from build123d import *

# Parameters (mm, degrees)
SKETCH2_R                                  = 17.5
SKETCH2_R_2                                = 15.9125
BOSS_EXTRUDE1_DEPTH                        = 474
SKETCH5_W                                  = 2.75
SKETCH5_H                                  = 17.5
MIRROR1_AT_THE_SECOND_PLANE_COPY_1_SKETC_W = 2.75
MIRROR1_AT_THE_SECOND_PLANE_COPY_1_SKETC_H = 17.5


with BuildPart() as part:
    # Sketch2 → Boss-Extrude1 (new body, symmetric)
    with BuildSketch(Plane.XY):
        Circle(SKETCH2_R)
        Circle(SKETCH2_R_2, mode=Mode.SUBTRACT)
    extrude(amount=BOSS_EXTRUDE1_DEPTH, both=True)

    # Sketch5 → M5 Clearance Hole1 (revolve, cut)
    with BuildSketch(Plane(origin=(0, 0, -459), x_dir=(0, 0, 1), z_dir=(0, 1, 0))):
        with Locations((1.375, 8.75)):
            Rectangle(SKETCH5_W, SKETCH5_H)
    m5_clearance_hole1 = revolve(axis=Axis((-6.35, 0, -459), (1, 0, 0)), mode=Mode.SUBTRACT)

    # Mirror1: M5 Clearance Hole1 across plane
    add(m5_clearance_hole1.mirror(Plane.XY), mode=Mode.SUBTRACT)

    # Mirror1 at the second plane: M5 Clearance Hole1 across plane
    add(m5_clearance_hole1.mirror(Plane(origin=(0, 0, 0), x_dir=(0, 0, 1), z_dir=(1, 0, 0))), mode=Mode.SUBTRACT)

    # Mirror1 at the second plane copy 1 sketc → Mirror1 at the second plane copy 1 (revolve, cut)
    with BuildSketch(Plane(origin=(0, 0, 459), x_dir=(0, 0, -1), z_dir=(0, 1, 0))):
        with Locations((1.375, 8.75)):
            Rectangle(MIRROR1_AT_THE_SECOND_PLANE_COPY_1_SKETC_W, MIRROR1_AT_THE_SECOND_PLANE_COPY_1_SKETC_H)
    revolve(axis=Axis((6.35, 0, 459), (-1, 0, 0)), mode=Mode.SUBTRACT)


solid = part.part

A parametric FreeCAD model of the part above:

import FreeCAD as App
import Part
import Sketcher

V = App.Vector


def add_polygon(sketch, points):
    """Adds a closed chain of lines whose ends are joined by coincident constraints."""
    first, n = sketch.GeometryCount, len(points)
    for a, b in zip(points, points[1:] + points[:1]):
        sketch.addGeometry(Part.LineSegment(App.Vector(*a, 0), App.Vector(*b, 0)), False)
    for i in range(n):
        sketch.addConstraint(Sketcher.Constraint("Coincident", first + i, 2, first + (i + 1) % n, 1))

doc = App.newDocument("Part")
body = doc.addObject("PartDesign::Body", "Body")

# Sketch on XY plane
sketch1 = body.newObject("Sketcher::SketchObject", "Sketch")
sketch1.AttachmentSupport = (doc.getObject("XY_Plane"), [""])
sketch1.MapMode = "FlatFace"
sketch1.addGeometry([
    Part.Circle(V(0, 0, 0), V(0, 0, 1), 18),
    Part.Circle(V(0, 0, 0), V(0, 0, 1), 16),
], False)
sketch1.addConstraint([
    Sketcher.Constraint("Coincident", 0, 3, -1, 1),
    Sketcher.Constraint("Coincident", 1, 3, -1, 1),
    Sketcher.Constraint("Diameter", 0, 35.0),
    Sketcher.Constraint("Diameter", 1, 31.825),
])
pad1 = body.newObject("PartDesign::Pad", "Pad")
pad1.Profile = sketch1
pad1.Length = 948
pad1.Midplane = True

# Sketch on XZ plane
sketch2 = body.newObject("Sketcher::SketchObject", "Sketch001")
sketch2.AttachmentSupport = (doc.getObject("XZ_Plane"), [""])
sketch2.MapMode = "FlatFace"
add_polygon(sketch2, [(17.5, -459), (0, -459), (0, -456.2), (17.5, -456.2)])  # lines 0-3
sketch2.addGeometry(Part.LineSegment(V(0, -459, 0), V(17.5, -459, 0)), True)  # axis
sketch2.addConstraint([
    Sketcher.Constraint("Horizontal", 0),
    Sketcher.Constraint("Vertical", 1),
    Sketcher.Constraint("Horizontal", 2),
    Sketcher.Constraint("Vertical", 3),
    Sketcher.Constraint("Horizontal", 4),
    Sketcher.Constraint("Coincident", 4, 1, 0, 2),
    Sketcher.Constraint("PointOnObject", 0, 2, -2),
    Sketcher.Constraint("Vertical", 2, 2, 4, 2),
    Sketcher.Constraint("DistanceX", 0, 2, 0, 1, 17.5),
    Sketcher.Constraint("DistanceY", 0, 2, -1, 1, 459.0),
    Sketcher.Constraint("DistanceY", 1, 1, 1, 2, 2.75),
])
groove = body.newObject("PartDesign::Groove", "Groove")
groove.Profile = sketch2
groove.ReferenceAxis = (sketch2, ["Axis0"])
groove.Angle = 360
doc.recompute()

mirrored = body.newObject("PartDesign::Mirrored", "Mirrored")
mirrored.Originals = [groove]
mirrored.MirrorPlane = (doc.getObject("XY_Plane"), [""])
body.Tip = mirrored
doc.recompute()

mirrored2 = body.newObject("PartDesign::Mirrored", "Mirrored001")
mirrored2.Originals = [groove]
mirrored2.MirrorPlane = (doc.getObject("YZ_Plane"), [""])
body.Tip = mirrored2

# Sketch on XZ plane
sketch3 = body.newObject("Sketcher::SketchObject", "Sketch002")
sketch3.AttachmentSupport = (doc.getObject("XZ_Plane"), [""])
sketch3.MapMode = "FlatFace"
add_polygon(sketch3, [(-17.5, 459), (0, 459), (0, 456.2), (-17.5, 456.2)])  # lines 0-3
sketch3.addGeometry(Part.LineSegment(V(0, 459, 0), V(-17.5, 459, 0)), True)  # axis
sketch3.addConstraint([
    Sketcher.Constraint("Horizontal", 0),
    Sketcher.Constraint("Vertical", 1),
    Sketcher.Constraint("Horizontal", 2),
    Sketcher.Constraint("Vertical", 3),
    Sketcher.Constraint("Horizontal", 4),
    Sketcher.Constraint("Coincident", 4, 1, 0, 2),
    Sketcher.Constraint("PointOnObject", 0, 2, -2),
    Sketcher.Constraint("Vertical", 2, 2, 4, 2),
    Sketcher.Constraint("DistanceX", 0, 1, 0, 2, 17.5),
    Sketcher.Constraint("DistanceY", -1, 1, 0, 2, 459.0),
    Sketcher.Constraint("DistanceY", 1, 2, 1, 1, 2.75),
])
groove2 = body.newObject("PartDesign::Groove", "Groove001")
groove2.Profile = sketch3
groove2.ReferenceAxis = (sketch3, ["Axis0"])
groove2.Angle = 360

doc.recompute()
